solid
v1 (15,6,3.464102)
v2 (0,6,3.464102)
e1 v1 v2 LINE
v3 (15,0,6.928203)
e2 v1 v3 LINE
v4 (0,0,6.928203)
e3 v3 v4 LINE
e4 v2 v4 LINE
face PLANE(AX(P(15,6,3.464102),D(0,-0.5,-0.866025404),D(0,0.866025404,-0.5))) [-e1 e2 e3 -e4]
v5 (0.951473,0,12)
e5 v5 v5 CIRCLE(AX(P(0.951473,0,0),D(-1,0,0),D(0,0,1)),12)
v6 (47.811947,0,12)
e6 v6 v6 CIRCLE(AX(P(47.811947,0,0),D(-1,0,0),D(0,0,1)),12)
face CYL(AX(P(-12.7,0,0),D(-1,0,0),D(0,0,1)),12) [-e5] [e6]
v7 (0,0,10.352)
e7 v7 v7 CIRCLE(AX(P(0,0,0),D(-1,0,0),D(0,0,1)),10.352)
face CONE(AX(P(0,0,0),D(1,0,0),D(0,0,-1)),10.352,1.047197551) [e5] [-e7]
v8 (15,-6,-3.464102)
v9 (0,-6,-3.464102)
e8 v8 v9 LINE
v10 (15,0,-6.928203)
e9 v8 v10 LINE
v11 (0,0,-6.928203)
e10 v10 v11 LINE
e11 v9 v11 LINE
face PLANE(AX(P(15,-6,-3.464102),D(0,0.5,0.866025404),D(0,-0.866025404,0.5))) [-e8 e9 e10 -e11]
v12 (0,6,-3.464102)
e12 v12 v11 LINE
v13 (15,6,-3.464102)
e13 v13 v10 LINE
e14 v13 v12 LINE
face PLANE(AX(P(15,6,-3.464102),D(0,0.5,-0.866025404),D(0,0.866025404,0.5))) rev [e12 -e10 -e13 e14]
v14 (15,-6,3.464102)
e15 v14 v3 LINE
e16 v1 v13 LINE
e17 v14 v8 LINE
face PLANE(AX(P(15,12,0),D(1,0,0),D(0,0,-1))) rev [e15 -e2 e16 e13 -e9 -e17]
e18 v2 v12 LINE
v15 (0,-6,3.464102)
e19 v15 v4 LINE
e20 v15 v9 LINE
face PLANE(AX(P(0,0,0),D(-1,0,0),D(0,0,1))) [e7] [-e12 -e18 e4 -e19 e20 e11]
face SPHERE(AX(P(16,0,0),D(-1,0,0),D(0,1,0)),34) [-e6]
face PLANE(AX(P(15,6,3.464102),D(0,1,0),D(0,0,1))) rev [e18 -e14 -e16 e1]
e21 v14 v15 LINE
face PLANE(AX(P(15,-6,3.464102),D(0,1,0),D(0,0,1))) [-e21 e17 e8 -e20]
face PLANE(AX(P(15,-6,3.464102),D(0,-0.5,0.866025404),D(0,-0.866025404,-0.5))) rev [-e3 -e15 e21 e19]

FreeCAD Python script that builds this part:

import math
import FreeCAD as App
import Part
import Sketcher

V = App.Vector
Q = App.Units.Quantity


def add_polygon(sketch, points):
    """Adds a closed chain of lines whose ends are joined by coincident constraints."""
    first, n = sketch.GeometryCount, len(points)
    for a, b in zip(points, points[1:] + points[:1]):
        sketch.addGeometry(Part.LineSegment(App.Vector(*a, 0), App.Vector(*b, 0)), False)
    for i in range(n):
        sketch.addConstraint(Sketcher.Constraint("Coincident", first + i, 2, first + (i + 1) % n, 1))

doc = App.newDocument("Part")
body = doc.addObject("PartDesign::Body", "Body")

sketch1 = body.newObject("Sketcher::SketchObject", "Sketch")
sketch1.AttachmentSupport = (doc.getObject("XY_Plane"), [""])
sketch1.MapMode = "FlatFace"
sketch1.addGeometry([
    Part.LineSegment(V(0, 10.4, 0), V(0, 0, 0)),
    Part.LineSegment(V(0, 0, 0), V(50, 0, 0)),
    Part.ArcOfCircle(Part.Circle(V(16, 0, 0), V(0, 0, 1), 34), math.radians(0), math.radians(21)),
    Part.LineSegment(V(47.8, 12, 0), V(1, 12, 0)),
    Part.LineSegment(V(1, 12, 0), V(0, 10.4, 0)),
], False)
sketch1.addConstraint([
    Sketcher.Constraint("Coincident", 0, 2, 1, 1),
    Sketcher.Constraint("Coincident", 1, 2, 2, 1),
    Sketcher.Constraint("Coincident", 2, 2, 3, 1),
    Sketcher.Constraint("Coincident", 3, 2, 4, 1),
    Sketcher.Constraint("Coincident", 4, 2, 0, 1),
    Sketcher.Constraint("Vertical", 0),
    Sketcher.Constraint("Horizontal", 1),
    Sketcher.Constraint("Horizontal", 3),
    Sketcher.Constraint("Coincident", 0, 2, -1, 1),
    Sketcher.Constraint("PointOnObject", 2, 3, -1),
    Sketcher.Constraint("Radius", 2, Q("34 mm")),
    Sketcher.Constraint("DistanceX", 1, 1, 1, 2, Q("50 mm")),
    Sketcher.Constraint("Angle", 4, Q("-120 deg")),
    Sketcher.Constraint("DistanceY", -1, 1, 2, 2, Q("12 mm")),
    Sketcher.Constraint("DistanceY", 0, 2, 0, 1, Q("10.352 mm")),
])
revolution = body.newObject("PartDesign::Revolution", "Revolution")
revolution.Profile = sketch1
revolution.ReferenceAxis = (sketch1, ["H_Axis"])
revolution.Angle = 360

sketch2 = body.newObject("Sketcher::SketchObject", "Sketch001")
sketch2.AttachmentSupport = (doc.getObject("YZ_Plane"), [""])
sketch2.MapMode = "FlatFace"
add_polygon(sketch2, [(6, 3), (6, -3), (0, -7), (-6, -3), (-6, 3), (0, 7)])
sketch2.addConstraint([
    Sketcher.Constraint("Vertical", 0),
    Sketcher.Constraint("Vertical", 3),
    Sketcher.Constraint("Symmetric", 0, 2, 3, 2, -1, 1),
    Sketcher.Constraint("Symmetric", 1, 2, 4, 2, -1, 1),
    Sketcher.Constraint("PointOnObject", 1, 2, -2),
    Sketcher.Constraint("Parallel", 2, 5),
    Sketcher.Constraint("Horizontal", 0, 2, 2, 2),
    Sketcher.Constraint("Angle", 1, Q("-150 deg")),
    Sketcher.Constraint("DistanceX", -1, 1, 0, 2, Q("6 mm")),
    Sketcher.Constraint("DistanceY", 0, 2, -1, 1, Q("3.464102 mm")),
])
pocket1 = body.newObject("PartDesign::Pocket", "Pocket")
pocket1.Profile = sketch2
pocket1.Length = 15
pocket1.Reversed = True

doc.recompute()
